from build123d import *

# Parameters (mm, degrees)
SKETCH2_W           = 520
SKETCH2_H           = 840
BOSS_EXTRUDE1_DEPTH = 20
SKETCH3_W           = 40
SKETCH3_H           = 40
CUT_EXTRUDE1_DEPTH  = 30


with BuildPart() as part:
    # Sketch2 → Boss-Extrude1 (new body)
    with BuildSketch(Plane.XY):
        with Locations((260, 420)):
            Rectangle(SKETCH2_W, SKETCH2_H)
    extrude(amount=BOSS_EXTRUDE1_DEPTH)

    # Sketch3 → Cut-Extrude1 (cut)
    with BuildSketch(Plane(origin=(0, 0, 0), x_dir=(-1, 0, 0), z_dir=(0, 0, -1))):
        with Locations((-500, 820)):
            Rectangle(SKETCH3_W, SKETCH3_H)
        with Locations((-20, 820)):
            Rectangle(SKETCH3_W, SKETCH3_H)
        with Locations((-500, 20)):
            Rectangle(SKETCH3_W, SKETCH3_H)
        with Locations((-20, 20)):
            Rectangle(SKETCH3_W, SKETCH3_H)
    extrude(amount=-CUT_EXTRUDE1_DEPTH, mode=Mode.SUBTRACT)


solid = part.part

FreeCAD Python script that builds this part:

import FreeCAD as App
import Part
import Sketcher

V = App.Vector

doc = App.newDocument("Part")
params = doc.addObject("Spreadsheet::Sheet", "Params")
for row, (alias, value) in enumerate([
    ("sketch1_width", "520 mm"),
    ("sketch1_height", "840 mm"),
    ("pad1_length", "20 mm"),
    ("sketch2_width", "40 mm"),
    ("pocket1_length", "30 mm"),
], start=1):
    params.set(f"A{row}", alias)
    params.set(f"B{row}", "=" + value)
    params.setAlias(f"B{row}", alias)

body = doc.addObject("PartDesign::Body", "Body")

# Sketch on XY plane
sketch1 = body.newObject("Sketcher::SketchObject", "Sketch")
sketch1.AttachmentSupport = (doc.getObject("XY_Plane"), [""])
sketch1.MapMode = "FlatFace"
sketch1.addGeometry(Part.LineSegment(V(0, 840, 0), V(0, 0, 0)), False)
sketch1.addGeometry(Part.LineSegment(V(0, 0, 0), V(520, 0, 0)), False)
sketch1.addGeometry(Part.LineSegment(V(520, 0, 0), V(520, 840, 0)), False)
sketch1.addGeometry(Part.LineSegment(V(520, 840, 0), V(0, 840, 0)), False)
sketch1.addConstraint(Sketcher.Constraint("Coincident", 0, 2, 1, 1))
sketch1.addConstraint(Sketcher.Constraint("Coincident", 1, 2, 2, 1))
sketch1.addConstraint(Sketcher.Constraint("Coincident", 2, 2, 3, 1))
sketch1.addConstraint(Sketcher.Constraint("Coincident", 3, 2, 0, 1))
sketch1.addConstraint(Sketcher.Constraint("Vertical", 0))
sketch1.addConstraint(Sketcher.Constraint("Horizontal", 1))
sketch1.addConstraint(Sketcher.Constraint("Vertical", 2))
sketch1.addConstraint(Sketcher.Constraint("Horizontal", 3))
sketch1.addConstraint(Sketcher.Constraint("Coincident", 0, 2, -1, 1))
sketch1.addConstraint(Sketcher.Constraint("DistanceX", 1, 1, 1, 2, 520.0))
sketch1.addConstraint(Sketcher.Constraint("DistanceY", 0, 2, 0, 1, 840.0))
sketch1.setExpression("Constraints[9]", "Params.sketch1_width")
sketch1.setExpression("Constraints[10]", "Params.sketch1_height")
pad1 = body.newObject("PartDesign::Pad", "Pad")
pad1.Profile = sketch1
pad1.setExpression("Length", "Params.pad1_length")

# Sketch on XY plane
sketch2 = body.newObject("Sketcher::SketchObject", "Sketch001")
sketch2.AttachmentSupport = (doc.getObject("XY_Plane"), [""])
sketch2.MapMode = "FlatFace"
sketch2.addGeometry(Part.LineSegment(V(520, 840, 0), V(520, 800, 0)), False)
sketch2.addGeometry(Part.LineSegment(V(520, 800, 0), V(480, 800, 0)), False)
sketch2.addGeometry(Part.LineSegment(V(480, 800, 0), V(480, 840, 0)), False)
sketch2.addGeometry(Part.LineSegment(V(480, 840, 0), V(520, 840, 0)), False)
sketch2.addGeometry(Part.LineSegment(V(40, 840, 0), V(40, 800, 0)), False)
sketch2.addGeometry(Part.LineSegment(V(40, 800, 0), V(0, 800, 0)), False)
sketch2.addGeometry(Part.LineSegment(V(0, 800, 0), V(0, 840, 0)), False)
sketch2.addGeometry(Part.LineSegment(V(0, 840, 0), V(40, 840, 0)), False)
sketch2.addGeometry(Part.LineSegment(V(520, 40, 0), V(520, 0, 0)), False)
sketch2.addGeometry(Part.LineSegment(V(520, 0, 0), V(480, 0, 0)), False)
sketch2.addGeometry(Part.LineSegment(V(480, 0, 0), V(480, 40, 0)), False)
sketch2.addGeometry(Part.LineSegment(V(480, 40, 0), V(520, 40, 0)), False)
sketch2.addGeometry(Part.LineSegment(V(40, 40, 0), V(40, 0, 0)), False)
sketch2.addGeometry(Part.LineSegment(V(40, 0, 0), V(0, 0, 0)), False)
sketch2.addGeometry(Part.LineSegment(V(0, 0, 0), V(0, 40, 0)), False)
sketch2.addGeometry(Part.LineSegment(V(0, 40, 0), V(40, 40, 0)), False)
sketch2.addConstraint(Sketcher.Constraint("Coincident", 0, 2, 1, 1))
sketch2.addConstraint(Sketcher.Constraint("Coincident", 1, 2, 2, 1))
sketch2.addConstraint(Sketcher.Constraint("Coincident", 2, 2, 3, 1))
sketch2.addConstraint(Sketcher.Constraint("Coincident", 3, 2, 0, 1))
sketch2.addConstraint(Sketcher.Constraint("Coincident", 4, 2, 5, 1))
sketch2.addConstraint(Sketcher.Constraint("Coincident", 5, 2, 6, 1))
sketch2.addConstraint(Sketcher.Constraint("Coincident", 6, 2, 7, 1))
sketch2.addConstraint(Sketcher.Constraint("Coincident", 7, 2, 4, 1))
sketch2.addConstraint(Sketcher.Constraint("Coincident", 8, 2, 9, 1))
sketch2.addConstraint(Sketcher.Constraint("Coincident", 9, 2, 10, 1))
sketch2.addConstraint(Sketcher.Constraint("Coincident", 10, 2, 11, 1))
sketch2.addConstraint(Sketcher.Constraint("Coincident", 11, 2, 8, 1))
sketch2.addConstraint(Sketcher.Constraint("Coincident", 12, 2, 13, 1))
sketch2.addConstraint(Sketcher.Constraint("Coincident", 13, 2, 14, 1))
sketch2.addConstraint(Sketcher.Constraint("Coincident", 14, 2, 15, 1))
sketch2.addConstraint(Sketcher.Constraint("Coincident", 15, 2, 12, 1))
sketch2.addConstraint(Sketcher.Constraint("Vertical", 0))
sketch2.addConstraint(Sketcher.Constraint("Horizontal", 1))
sketch2.addConstraint(Sketcher.Constraint("Vertical", 2))
sketch2.addConstraint(Sketcher.Constraint("Horizontal", 3))
sketch2.addConstraint(Sketcher.Constraint("Vertical", 4))
sketch2.addConstraint(Sketcher.Constraint("Horizontal", 5))
sketch2.addConstraint(Sketcher.Constraint("Vertical", 6))
sketch2.addConstraint(Sketcher.Constraint("Horizontal", 7))
sketch2.addConstraint(Sketcher.Constraint("Vertical", 8))
sketch2.addConstraint(Sketcher.Constraint("Horizontal", 9))
sketch2.addConstraint(Sketcher.Constraint("Vertical", 10))
sketch2.addConstraint(Sketcher.Constraint("Horizontal", 11))
sketch2.addConstraint(Sketcher.Constraint("Vertical", 12))
sketch2.addConstraint(Sketcher.Constraint("Horizontal", 13))
sketch2.addConstraint(Sketcher.Constraint("Vertical", 14))
sketch2.addConstraint(Sketcher.Constraint("Horizontal", 15))
sketch2.addConstraint(Sketcher.Constraint("Coincident", 13, 2, -1, 1))
sketch2.addConstraint(Sketcher.Constraint("PointOnObject", 5, 2, -2))
sketch2.addConstraint(Sketcher.Constraint("PointOnObject", 8, 2, -1))
sketch2.addConstraint(Sketcher.Constraint("Horizontal", 1, 2, 4, 2))
sketch2.addConstraint(Sketcher.Constraint("Horizontal", 3, 2, 6, 2))
sketch2.addConstraint(Sketcher.Constraint("Horizontal", 11, 2, 14, 2))
sketch2.addConstraint(Sketcher.Constraint("Vertical", 3, 2, 8, 2))
sketch2.addConstraint(Sketcher.Constraint("Vertical", 2, 2, 9, 2))
sketch2.addConstraint(Sketcher.Constraint("Vertical", 7, 2, 12, 2))
sketch2.addConstraint(Sketcher.Constraint("Equal", 3, 5))
sketch2.addConstraint(Sketcher.Constraint("Equal", 15, 0))
sketch2.addConstraint(Sketcher.Constraint("Equal", 6, 8))
sketch2.addConstraint(Sketcher.Constraint("DistanceX", 1, 2, 1, 1, 40.0))
sketch2.addConstraint(Sketcher.Constraint("DistanceX", -1, 1, 0, 2, 520.0))
sketch2.addConstraint(Sketcher.Constraint("DistanceY", -1, 1, 0, 2, 800.0))
sketch2.setExpression("Constraints[44]", "Params.sketch2_width")
pocket1 = body.newObject("PartDesign::Pocket", "Pocket")
pocket1.Profile = sketch2
pocket1.setExpression("Length", "Params.pocket1_length")
pocket1.Reversed = True

doc.recompute()
